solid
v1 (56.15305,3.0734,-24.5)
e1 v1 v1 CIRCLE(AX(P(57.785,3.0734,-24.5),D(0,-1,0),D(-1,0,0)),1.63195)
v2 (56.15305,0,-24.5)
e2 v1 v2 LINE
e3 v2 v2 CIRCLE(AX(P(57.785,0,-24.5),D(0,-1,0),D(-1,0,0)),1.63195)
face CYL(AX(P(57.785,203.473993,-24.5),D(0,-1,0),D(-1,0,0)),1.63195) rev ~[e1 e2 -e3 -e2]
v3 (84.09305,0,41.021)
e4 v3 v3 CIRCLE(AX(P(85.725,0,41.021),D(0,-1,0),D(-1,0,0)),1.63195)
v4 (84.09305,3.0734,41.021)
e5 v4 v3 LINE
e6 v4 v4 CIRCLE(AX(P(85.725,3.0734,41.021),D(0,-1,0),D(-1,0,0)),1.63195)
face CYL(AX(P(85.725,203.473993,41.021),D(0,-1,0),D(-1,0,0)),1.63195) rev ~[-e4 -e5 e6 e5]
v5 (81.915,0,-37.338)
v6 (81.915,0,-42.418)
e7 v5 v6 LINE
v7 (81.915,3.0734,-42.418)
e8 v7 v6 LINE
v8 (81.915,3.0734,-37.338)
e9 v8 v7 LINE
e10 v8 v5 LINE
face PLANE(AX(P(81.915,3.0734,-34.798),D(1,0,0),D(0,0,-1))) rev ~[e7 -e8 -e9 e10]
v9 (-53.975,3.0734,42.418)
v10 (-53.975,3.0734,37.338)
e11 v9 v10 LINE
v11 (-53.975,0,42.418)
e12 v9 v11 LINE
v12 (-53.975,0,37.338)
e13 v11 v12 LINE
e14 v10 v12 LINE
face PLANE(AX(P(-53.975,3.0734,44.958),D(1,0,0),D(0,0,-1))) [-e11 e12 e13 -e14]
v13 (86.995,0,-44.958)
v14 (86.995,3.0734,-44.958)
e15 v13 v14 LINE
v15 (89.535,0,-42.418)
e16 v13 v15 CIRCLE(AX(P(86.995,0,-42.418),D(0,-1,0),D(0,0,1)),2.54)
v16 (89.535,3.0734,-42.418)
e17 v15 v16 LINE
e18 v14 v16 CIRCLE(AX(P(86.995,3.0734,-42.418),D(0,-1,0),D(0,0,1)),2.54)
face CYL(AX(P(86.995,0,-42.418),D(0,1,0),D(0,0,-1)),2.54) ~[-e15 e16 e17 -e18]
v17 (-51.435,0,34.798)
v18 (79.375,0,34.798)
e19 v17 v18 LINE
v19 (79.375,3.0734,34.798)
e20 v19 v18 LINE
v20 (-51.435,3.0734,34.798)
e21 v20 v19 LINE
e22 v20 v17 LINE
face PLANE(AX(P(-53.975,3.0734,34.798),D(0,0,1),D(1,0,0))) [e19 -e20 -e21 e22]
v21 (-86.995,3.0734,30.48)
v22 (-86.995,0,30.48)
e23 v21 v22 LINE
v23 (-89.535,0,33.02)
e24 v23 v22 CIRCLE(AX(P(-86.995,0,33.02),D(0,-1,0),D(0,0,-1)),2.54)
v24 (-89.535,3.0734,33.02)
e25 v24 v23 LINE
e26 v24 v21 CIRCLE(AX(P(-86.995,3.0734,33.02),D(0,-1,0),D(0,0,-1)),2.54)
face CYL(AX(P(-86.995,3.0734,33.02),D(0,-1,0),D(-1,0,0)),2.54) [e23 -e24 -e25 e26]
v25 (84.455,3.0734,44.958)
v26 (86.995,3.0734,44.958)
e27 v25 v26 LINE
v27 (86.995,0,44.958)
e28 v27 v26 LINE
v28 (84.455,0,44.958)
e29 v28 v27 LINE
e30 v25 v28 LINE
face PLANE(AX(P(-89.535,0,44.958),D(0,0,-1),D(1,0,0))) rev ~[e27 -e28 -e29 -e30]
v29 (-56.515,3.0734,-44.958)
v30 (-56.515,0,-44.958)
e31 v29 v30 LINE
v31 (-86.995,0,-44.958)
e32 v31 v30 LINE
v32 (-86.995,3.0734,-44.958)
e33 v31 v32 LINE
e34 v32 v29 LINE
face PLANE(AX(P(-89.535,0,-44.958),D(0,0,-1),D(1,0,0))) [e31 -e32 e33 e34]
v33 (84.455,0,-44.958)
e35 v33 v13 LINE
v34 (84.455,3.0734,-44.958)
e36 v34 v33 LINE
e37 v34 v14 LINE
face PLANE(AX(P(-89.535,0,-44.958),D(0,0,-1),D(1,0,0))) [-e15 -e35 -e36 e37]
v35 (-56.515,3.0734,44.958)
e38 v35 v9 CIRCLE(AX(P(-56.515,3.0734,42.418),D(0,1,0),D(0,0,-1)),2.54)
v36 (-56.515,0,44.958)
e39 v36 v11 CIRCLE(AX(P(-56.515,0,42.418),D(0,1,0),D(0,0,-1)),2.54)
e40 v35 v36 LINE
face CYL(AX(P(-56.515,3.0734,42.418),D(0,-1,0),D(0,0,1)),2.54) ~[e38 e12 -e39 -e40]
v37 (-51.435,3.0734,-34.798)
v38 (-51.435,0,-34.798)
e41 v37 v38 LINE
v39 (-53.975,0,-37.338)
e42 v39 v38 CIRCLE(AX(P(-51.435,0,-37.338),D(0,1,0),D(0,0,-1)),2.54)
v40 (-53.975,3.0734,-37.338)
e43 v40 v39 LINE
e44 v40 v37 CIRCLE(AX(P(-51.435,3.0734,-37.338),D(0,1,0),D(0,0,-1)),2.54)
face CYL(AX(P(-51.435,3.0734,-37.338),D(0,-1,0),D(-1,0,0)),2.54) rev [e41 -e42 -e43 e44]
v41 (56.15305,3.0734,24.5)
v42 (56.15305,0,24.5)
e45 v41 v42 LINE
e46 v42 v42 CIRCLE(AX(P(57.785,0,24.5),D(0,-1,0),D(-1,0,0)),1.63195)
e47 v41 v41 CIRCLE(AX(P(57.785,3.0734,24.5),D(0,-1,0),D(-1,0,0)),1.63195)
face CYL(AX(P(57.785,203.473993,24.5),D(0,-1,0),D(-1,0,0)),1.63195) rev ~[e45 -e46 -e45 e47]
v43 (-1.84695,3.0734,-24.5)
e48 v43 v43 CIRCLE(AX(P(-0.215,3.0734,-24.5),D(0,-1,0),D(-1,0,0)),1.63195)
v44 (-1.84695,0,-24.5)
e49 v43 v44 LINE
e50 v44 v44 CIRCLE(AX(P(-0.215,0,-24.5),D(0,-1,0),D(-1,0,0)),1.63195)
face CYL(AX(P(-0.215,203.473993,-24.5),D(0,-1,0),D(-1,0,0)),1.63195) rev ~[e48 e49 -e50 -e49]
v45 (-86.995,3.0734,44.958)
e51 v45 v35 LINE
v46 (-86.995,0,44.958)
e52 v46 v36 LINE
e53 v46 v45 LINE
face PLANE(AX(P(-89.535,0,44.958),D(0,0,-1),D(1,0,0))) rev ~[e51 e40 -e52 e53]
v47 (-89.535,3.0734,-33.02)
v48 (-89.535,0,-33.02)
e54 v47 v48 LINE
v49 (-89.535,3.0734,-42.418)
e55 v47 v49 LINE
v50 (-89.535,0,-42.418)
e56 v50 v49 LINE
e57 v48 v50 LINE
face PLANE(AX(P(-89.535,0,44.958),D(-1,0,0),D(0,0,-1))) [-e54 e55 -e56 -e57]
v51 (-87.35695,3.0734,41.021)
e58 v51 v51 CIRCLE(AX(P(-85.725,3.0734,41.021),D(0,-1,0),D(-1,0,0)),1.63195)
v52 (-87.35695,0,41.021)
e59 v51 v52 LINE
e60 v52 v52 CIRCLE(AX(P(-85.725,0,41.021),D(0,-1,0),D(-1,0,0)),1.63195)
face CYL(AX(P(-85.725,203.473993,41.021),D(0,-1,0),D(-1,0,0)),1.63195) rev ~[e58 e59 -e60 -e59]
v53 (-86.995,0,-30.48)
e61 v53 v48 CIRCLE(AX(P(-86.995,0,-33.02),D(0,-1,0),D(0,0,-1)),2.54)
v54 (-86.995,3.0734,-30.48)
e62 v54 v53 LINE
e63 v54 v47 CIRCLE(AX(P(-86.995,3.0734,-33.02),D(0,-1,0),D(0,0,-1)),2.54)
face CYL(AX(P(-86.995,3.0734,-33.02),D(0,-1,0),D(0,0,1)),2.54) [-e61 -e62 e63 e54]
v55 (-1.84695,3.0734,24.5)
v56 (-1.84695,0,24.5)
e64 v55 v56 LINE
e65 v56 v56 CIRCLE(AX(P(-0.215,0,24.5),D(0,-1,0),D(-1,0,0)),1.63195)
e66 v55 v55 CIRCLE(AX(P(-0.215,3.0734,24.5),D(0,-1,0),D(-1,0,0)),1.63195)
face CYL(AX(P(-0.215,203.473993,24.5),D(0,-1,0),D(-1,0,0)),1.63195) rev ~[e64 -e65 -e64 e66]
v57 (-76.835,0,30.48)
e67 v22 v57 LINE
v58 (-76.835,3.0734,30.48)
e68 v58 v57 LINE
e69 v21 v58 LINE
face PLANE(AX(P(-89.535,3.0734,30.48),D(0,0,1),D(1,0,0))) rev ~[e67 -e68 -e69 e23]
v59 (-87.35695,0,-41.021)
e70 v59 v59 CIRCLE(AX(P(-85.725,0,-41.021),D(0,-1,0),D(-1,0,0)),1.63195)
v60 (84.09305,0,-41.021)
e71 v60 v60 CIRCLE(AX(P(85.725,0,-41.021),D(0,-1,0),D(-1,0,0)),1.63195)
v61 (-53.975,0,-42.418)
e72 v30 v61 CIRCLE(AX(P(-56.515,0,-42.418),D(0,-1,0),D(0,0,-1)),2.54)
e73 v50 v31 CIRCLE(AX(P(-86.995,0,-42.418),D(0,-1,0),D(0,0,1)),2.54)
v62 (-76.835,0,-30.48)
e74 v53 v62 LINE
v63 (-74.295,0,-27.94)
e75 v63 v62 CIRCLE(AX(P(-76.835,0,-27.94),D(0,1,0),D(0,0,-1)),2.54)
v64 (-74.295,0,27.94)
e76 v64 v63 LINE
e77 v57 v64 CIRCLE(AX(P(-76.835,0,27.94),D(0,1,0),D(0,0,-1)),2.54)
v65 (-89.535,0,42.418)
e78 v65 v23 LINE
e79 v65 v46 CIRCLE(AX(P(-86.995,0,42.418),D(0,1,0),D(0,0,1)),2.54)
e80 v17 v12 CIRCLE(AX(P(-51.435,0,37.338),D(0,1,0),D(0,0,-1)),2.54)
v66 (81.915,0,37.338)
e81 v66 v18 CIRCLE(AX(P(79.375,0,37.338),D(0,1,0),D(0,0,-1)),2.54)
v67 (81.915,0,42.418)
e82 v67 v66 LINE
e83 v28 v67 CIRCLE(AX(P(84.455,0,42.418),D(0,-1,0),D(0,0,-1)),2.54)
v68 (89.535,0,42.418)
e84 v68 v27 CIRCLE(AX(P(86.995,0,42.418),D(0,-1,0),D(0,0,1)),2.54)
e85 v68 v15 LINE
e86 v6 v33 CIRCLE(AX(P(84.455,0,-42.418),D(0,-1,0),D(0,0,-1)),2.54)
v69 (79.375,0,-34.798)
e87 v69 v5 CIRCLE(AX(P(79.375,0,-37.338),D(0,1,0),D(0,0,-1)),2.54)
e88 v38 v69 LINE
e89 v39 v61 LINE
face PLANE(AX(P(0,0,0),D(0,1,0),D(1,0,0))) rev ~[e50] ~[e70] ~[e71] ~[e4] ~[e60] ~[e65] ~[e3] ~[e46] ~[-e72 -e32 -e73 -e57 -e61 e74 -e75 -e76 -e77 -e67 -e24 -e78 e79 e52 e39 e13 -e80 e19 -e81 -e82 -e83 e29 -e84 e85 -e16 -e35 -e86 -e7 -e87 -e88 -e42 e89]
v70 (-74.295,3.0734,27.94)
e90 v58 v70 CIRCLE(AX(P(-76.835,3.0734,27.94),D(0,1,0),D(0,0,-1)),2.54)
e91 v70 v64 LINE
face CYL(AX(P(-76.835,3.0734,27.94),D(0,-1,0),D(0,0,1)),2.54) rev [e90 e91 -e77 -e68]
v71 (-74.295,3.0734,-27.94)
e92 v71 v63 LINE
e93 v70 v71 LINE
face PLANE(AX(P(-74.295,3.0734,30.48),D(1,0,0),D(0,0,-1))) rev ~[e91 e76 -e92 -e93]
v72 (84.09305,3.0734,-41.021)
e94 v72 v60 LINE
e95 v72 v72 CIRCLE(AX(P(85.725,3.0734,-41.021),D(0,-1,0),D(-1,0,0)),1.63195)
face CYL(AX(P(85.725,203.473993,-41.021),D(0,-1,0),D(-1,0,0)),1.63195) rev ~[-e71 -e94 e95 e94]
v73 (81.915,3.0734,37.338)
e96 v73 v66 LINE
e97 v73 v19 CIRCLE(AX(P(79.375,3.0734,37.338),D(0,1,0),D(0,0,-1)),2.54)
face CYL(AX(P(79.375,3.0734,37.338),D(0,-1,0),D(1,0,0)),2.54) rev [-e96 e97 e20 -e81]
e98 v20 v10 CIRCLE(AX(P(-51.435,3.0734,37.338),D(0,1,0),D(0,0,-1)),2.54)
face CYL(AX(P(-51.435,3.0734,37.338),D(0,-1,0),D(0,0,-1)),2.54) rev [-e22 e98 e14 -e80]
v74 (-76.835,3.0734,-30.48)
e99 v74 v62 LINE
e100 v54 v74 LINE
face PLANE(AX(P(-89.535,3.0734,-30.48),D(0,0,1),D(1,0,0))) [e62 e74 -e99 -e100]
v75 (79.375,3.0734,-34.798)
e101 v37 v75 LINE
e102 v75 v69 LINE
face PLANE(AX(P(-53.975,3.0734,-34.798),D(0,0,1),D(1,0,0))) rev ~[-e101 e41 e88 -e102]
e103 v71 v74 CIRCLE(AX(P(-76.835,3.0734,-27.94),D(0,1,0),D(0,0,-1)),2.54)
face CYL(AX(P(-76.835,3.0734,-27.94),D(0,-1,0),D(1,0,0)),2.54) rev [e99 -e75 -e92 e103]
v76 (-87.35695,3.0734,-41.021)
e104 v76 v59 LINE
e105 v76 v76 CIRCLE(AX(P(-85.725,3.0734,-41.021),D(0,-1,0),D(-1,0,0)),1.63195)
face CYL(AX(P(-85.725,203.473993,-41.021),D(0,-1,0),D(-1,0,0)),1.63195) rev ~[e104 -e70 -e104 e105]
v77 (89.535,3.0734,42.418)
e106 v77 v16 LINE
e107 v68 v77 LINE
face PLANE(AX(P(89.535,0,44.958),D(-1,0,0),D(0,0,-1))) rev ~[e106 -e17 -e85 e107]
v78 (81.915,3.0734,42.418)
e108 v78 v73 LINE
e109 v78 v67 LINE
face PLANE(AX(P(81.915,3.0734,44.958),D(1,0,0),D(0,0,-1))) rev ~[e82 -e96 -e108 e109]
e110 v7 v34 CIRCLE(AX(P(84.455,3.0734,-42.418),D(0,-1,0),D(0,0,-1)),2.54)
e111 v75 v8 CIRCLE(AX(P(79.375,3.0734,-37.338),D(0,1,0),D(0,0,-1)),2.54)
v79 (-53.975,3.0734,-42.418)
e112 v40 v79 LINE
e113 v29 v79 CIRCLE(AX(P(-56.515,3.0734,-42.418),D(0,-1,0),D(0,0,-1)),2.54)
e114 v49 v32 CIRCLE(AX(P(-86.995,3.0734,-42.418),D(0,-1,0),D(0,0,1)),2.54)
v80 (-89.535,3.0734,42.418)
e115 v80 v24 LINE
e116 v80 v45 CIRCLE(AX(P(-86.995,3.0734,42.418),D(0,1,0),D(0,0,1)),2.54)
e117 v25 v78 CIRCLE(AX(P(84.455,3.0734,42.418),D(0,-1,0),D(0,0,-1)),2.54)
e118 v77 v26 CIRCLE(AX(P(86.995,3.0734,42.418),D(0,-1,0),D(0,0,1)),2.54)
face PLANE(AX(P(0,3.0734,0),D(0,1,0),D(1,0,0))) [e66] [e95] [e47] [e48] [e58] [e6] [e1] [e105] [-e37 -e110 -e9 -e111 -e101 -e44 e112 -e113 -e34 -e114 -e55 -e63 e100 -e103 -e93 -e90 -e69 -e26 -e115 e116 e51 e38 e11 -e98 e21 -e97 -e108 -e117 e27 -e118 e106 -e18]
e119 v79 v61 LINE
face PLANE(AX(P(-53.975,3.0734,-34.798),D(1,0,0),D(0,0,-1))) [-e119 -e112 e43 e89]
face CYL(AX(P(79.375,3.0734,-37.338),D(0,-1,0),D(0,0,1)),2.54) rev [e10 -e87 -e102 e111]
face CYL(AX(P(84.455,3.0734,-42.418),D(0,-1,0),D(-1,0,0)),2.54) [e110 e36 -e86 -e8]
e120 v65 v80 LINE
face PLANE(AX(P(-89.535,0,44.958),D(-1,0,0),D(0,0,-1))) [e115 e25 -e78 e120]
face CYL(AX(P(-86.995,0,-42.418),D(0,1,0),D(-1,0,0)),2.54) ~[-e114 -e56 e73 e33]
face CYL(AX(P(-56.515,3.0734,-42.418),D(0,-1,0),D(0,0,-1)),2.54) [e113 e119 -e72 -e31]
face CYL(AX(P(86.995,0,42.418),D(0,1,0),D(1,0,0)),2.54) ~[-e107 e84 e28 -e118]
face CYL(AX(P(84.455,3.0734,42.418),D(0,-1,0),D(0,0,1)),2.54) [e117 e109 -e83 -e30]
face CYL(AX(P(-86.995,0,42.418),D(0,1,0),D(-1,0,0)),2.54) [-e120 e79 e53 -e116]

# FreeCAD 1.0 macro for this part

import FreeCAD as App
import Part
import Sketcher

V = App.Vector
Q = App.Units.Quantity


def edges_at(feature, points):
    """Names of the edges that pass closest to the given points."""
    edges = feature.Shape.Edges
    near = lambda p: min(range(len(edges)), key=lambda i: edges[i].distToShape(Part.Vertex(*p))[0])
    return sorted({f"Edge{near(p) + 1}" for p in points})

doc = App.newDocument("Part")
params = doc.addObject("Spreadsheet::Sheet", "Params")
for row, (alias, value) in enumerate([
    ("sketch1_width", "7.05 in"),
    ("sketch1_height", "3.54 in"),
    ("pad1_length", "0.121 in"),
    ("hole_diameter", "0.1285 in"),
    ("hole2_diameter", "0.1285 in"),
    ("sketch4_width", "0.6 in"),
    ("sketch4_height", "2.4 in"),
    ("sketch4_height2", "0.4 in"),
    ("sketch4_width2", "5.35 in"),
    ("fillet_radius", "0.1 in"),
], start=1):
    params.set(f"A{row}", alias)
    params.set(f"B{row}", "=" + value)
    params.setAlias(f"B{row}", alias)

body = doc.addObject("PartDesign::Body", "Body")

# Sketch on XZ plane
sketch1 = body.newObject("Sketcher::SketchObject", "Sketch")
sketch1.AttachmentSupport = (doc.getObject("XZ_Plane"), [""])
sketch1.MapMode = "FlatFace"
sketch1.addGeometry(Part.LineSegment(V(-89.535, -44.958, 0), V(-89.535, 44.958, 0)), False)
sketch1.addGeometry(Part.LineSegment(V(-89.535, 44.958, 0), V(89.535, 44.958, 0)), False)
sketch1.addGeometry(Part.LineSegment(V(89.535, 44.958, 0), V(89.535, -44.958, 0)), False)
sketch1.addGeometry(Part.LineSegment(V(89.535, -44.958, 0), V(-89.535, -44.958, 0)), False)
sketch1.addConstraint(Sketcher.Constraint("Coincident", 0, 2, 1, 1))
sketch1.addConstraint(Sketcher.Constraint("Coincident", 1, 2, 2, 1))
sketch1.addConstraint(Sketcher.Constraint("Coincident", 2, 2, 3, 1))
sketch1.addConstraint(Sketcher.Constraint("Coincident", 3, 2, 0, 1))
sketch1.addConstraint(Sketcher.Constraint("Vertical", 0))
sketch1.addConstraint(Sketcher.Constraint("Horizontal", 1))
sketch1.addConstraint(Sketcher.Constraint("Vertical", 2))
sketch1.addConstraint(Sketcher.Constraint("Horizontal", 3))
sketch1.addConstraint(Sketcher.Constraint("Symmetric", 0, 2, 2, 2, -1, 1))
sketch1.addConstraint(Sketcher.Constraint("DistanceX", 1, 1, 1, 2, Q("7.05 in")))
sketch1.addConstraint(Sketcher.Constraint("DistanceY", 0, 1, 0, 2, Q("3.54 in")))
sketch1.setExpression("Constraints[9]", "Params.sketch1_width")
sketch1.setExpression("Constraints[10]", "Params.sketch1_height")
pad1 = body.newObject("PartDesign::Pad", "Pad")
pad1.Profile = sketch1
pad1.setExpression("Length", "Params.pad1_length")
pad1.Reversed = True

# Sketch on XZ plane
sketch2 = body.newObject("Sketcher::SketchObject", "Sketch001")
sketch2.AttachmentSupport = (doc.getObject("XZ_Plane"), [""])
sketch2.MapMode = "FlatFace"
sketch2.AttachmentOffset = App.Placement(V(0, 0, -0.121 * 25.4), App.Rotation())
sketch2.addGeometry(Part.Circle(V(-85.725, -41.021, 0), V(0, 0, 1), 1.63195), False)
sketch2.addGeometry(Part.Circle(V(-85.725, 41.021, 0), V(0, 0, 1), 1.63195), False)
sketch2.addGeometry(Part.Circle(V(85.725, 41.021, 0), V(0, 0, 1), 1.63195), False)
sketch2.addGeometry(Part.Circle(V(85.725, -41.021, 0), V(0, 0, 1), 1.63195), False)
sketch2.addConstraint(Sketcher.Constraint("Equal", 0, 1))
sketch2.addConstraint(Sketcher.Constraint("Equal", 1, 2))
sketch2.addConstraint(Sketcher.Constraint("Equal", 2, 3))
sketch2.addConstraint(Sketcher.Constraint("Symmetric", 0, 3, 2, 3, -1, 1))
sketch2.addConstraint(Sketcher.Constraint("Symmetric", 1, 3, 3, 3, -1, 1))
sketch2.addConstraint(Sketcher.Constraint("Symmetric", 1, 3, 2, 3, -2))
sketch2.addConstraint(Sketcher.Constraint("Diameter", 0, Q("0.1285 in")))
sketch2.addConstraint(Sketcher.Constraint("DistanceY", 0, 3, 1, 3, Q("3.23 in")))
sketch2.addConstraint(Sketcher.Constraint("DistanceX", 1, 3, 2, 3, Q("6.75 in")))
doc.recompute()
hole = body.newObject("PartDesign::Hole", "Hole")
hole.Profile = sketch2
hole.ThreadType = "None"
hole.setExpression("Diameter", "Params.hole_diameter")
hole.DepthType = "ThroughAll"
hole.Reversed = True

# Sketch on XZ plane
sketch3 = body.newObject("Sketcher::SketchObject", "Sketch002")
sketch3.AttachmentSupport = (doc.getObject("XZ_Plane"), [""])
sketch3.MapMode = "FlatFace"
sketch3.AttachmentOffset = App.Placement(V(0, 0, -0.121 * 25.4), App.Rotation())
sketch3.addGeometry(Part.Circle(V(-0.215, -24.5, 0), V(0, 0, 1), 1.63195), False)
sketch3.addGeometry(Part.Circle(V(-0.215, 24.5, 0), V(0, 0, 1), 1.63195), False)
sketch3.addGeometry(Part.Circle(V(57.785, 24.5, 0), V(0, 0, 1), 1.63195), False)
sketch3.addGeometry(Part.Circle(V(57.785, -24.5, 0), V(0, 0, 1), 1.63195), False)
sketch3.addConstraint(Sketcher.Constraint("Equal", 0, 1))
sketch3.addConstraint(Sketcher.Constraint("Equal", 1, 2))
sketch3.addConstraint(Sketcher.Constraint("Equal", 2, 3))
sketch3.addConstraint(Sketcher.Constraint("Symmetric", 0, 3, 1, 3, -1))
sketch3.addConstraint(Sketcher.Constraint("Symmetric", 2, 3, 3, 3, -1))
sketch3.addConstraint(Sketcher.Constraint("Horizontal", 1, 3, 2, 3))
sketch3.addConstraint(Sketcher.Constraint("Diameter", 0, Q("0.1285 in")))
sketch3.addConstraint(Sketcher.Constraint("DistanceX", -1, 1, 2, 3, Q("2.275 in")))
sketch3.addConstraint(Sketcher.Constraint("DistanceX", 0, 3, -1, 1, Q("0.215 mm")))
sketch3.addConstraint(Sketcher.Constraint("DistanceY", 0, 3, -1, 1, Q("24.5 mm")))
doc.recompute()
hole2 = body.newObject("PartDesign::Hole", "Hole001")
hole2.Profile = sketch3
hole2.ThreadType = "None"
hole2.setExpression("Diameter", "Params.hole2_diameter")
hole2.DepthType = "ThroughAll"
hole2.Reversed = True

# Sketch on XZ plane
sketch4 = body.newObject("Sketcher::SketchObject", "Sketch003")
sketch4.AttachmentSupport = (doc.getObject("XZ_Plane"), [""])
sketch4.MapMode = "FlatFace"
sketch4.AttachmentOffset = App.Placement(V(0, 0, -0.121 * 25.4), App.Rotation())
sketch4.addGeometry(Part.LineSegment(V(-89.535, -30.48, 0), V(-89.535, 30.48, 0)), False)
sketch4.addGeometry(Part.LineSegment(V(-89.535, 30.48, 0), V(-74.295, 30.48, 0)), False)
sketch4.addGeometry(Part.LineSegment(V(-74.295, 30.48, 0), V(-74.295, -30.48, 0)), False)
sketch4.addGeometry(Part.LineSegment(V(-74.295, -30.48, 0), V(-89.535, -30.48, 0)), False)
sketch4.addGeometry(Part.LineSegment(V(-53.975, 34.798, 0), V(-53.975, 44.958, 0)), False)
sketch4.addGeometry(Part.LineSegment(V(-53.975, 44.958, 0), V(81.915, 44.958, 0)), False)
sketch4.addGeometry(Part.LineSegment(V(81.915, 44.958, 0), V(81.915, 34.798, 0)), False)
sketch4.addGeometry(Part.LineSegment(V(81.915, 34.798, 0), V(-53.975, 34.798, 0)), False)
sketch4.addGeometry(Part.LineSegment(V(-53.975, -44.958, 0), V(-53.975, -34.798, 0)), False)
sketch4.addGeometry(Part.LineSegment(V(-53.975, -34.798, 0), V(81.915, -34.798, 0)), False)
sketch4.addGeometry(Part.LineSegment(V(81.915, -34.798, 0), V(81.915, -44.958, 0)), False)
sketch4.addGeometry(Part.LineSegment(V(81.915, -44.958, 0), V(-53.975, -44.958, 0)), False)
sketch4.addConstraint(Sketcher.Constraint("Coincident", 0, 2, 1, 1))
sketch4.addConstraint(Sketcher.Constraint("Coincident", 1, 2, 2, 1))
sketch4.addConstraint(Sketcher.Constraint("Coincident", 2, 2, 3, 1))
sketch4.addConstraint(Sketcher.Constraint("Coincident", 3, 2, 0, 1))
sketch4.addConstraint(Sketcher.Constraint("Coincident", 4, 2, 5, 1))
sketch4.addConstraint(Sketcher.Constraint("Coincident", 5, 2, 6, 1))
sketch4.addConstraint(Sketcher.Constraint("Coincident", 6, 2, 7, 1))
sketch4.addConstraint(Sketcher.Constraint("Coincident", 7, 2, 4, 1))
sketch4.addConstraint(Sketcher.Constraint("Coincident", 8, 2, 9, 1))
sketch4.addConstraint(Sketcher.Constraint("Coincident", 9, 2, 10, 1))
sketch4.addConstraint(Sketcher.Constraint("Coincident", 10, 2, 11, 1))
sketch4.addConstraint(Sketcher.Constraint("Coincident", 11, 2, 8, 1))
sketch4.addConstraint(Sketcher.Constraint("Vertical", 0))
sketch4.addConstraint(Sketcher.Constraint("Horizontal", 1))
sketch4.addConstraint(Sketcher.Constraint("Vertical", 2))
sketch4.addConstraint(Sketcher.Constraint("Horizontal", 3))
sketch4.addConstraint(Sketcher.Constraint("Vertical", 4))
sketch4.addConstraint(Sketcher.Constraint("Horizontal", 5))
sketch4.addConstraint(Sketcher.Constraint("Vertical", 6))
sketch4.addConstraint(Sketcher.Constraint("Horizontal", 7))
sketch4.addConstraint(Sketcher.Constraint("Vertical", 8))
sketch4.addConstraint(Sketcher.Constraint("Horizontal", 9))
sketch4.addConstraint(Sketcher.Constraint("Vertical", 10))
sketch4.addConstraint(Sketcher.Constraint("Horizontal", 11))
sketch4.addConstraint(Sketcher.Constraint("Symmetric", 7, 2, 8, 2, -1))
sketch4.addConstraint(Sketcher.Constraint("Symmetric", 5, 2, 10, 2, -1))
sketch4.addConstraint(Sketcher.Constraint("DistanceX", 1, 1, 1, 2, Q("0.6 in")))
sketch4.addConstraint(Sketcher.Constraint("DistanceY", 0, 1, 0, 2, Q("2.4 in")))
sketch4.addConstraint(Sketcher.Constraint("DistanceY", 4, 1, 4, 2, Q("0.4 in")))
sketch4.addConstraint(Sketcher.Constraint("DistanceX", 5, 1, 5, 2, Q("5.35 in")))
sketch4.addConstraint(Sketcher.Constraint("DistanceY", -1, 1, 0, 2, Q("1.2 in")))
sketch4.addConstraint(Sketcher.Constraint("DistanceX", 1, 2, 4, 2, Q("0.8 in")))
sketch4.addConstraint(Sketcher.Constraint("DistanceY", -1, 1, 4, 2, Q("1.77 in")))
sketch4.addConstraint(Sketcher.Constraint("DistanceX", 0, 2, -1, 1, Q("3.525 in")))
sketch4.setExpression("Constraints[26]", "Params.sketch4_width")
sketch4.setExpression("Constraints[27]", "Params.sketch4_height")
sketch4.setExpression("Constraints[28]", "Params.sketch4_height2")
sketch4.setExpression("Constraints[29]", "Params.sketch4_width2")
pocket1 = body.newObject("PartDesign::Pocket", "Pocket")
pocket1.Profile = sketch4
pocket1.Type = "ThroughAll"
pocket1.Reversed = True
doc.recompute()

fillet = body.newObject("PartDesign::Fillet", "Fillet")
fillet.Base = (pocket1, edges_at(pocket1, [
    (-89.535, 1.537, 30.48),
    (-89.535, 1.537, -30.48),
    (-74.295, 1.537, -30.48),
    (-74.295, 1.537, 30.48),
    (-89.535, 1.537, -44.958),
    (89.535, 1.537, -44.958),
    (89.535, 1.537, 44.958),
    (-89.535, 1.537, 44.958),
    (-53.975, 1.537, 44.958),
    (-53.975, 1.537, 34.798),
    (81.915, 1.537, 34.798),
    (81.915, 1.537, 44.958),
    (-53.975, 1.537, -34.798),
    (-53.975, 1.537, -44.958),
    (81.915, 1.537, -44.958),
    (81.915, 1.537, -34.798),
]))
fillet.setExpression("Radius", "Params.fillet_radius")

doc.recompute()
